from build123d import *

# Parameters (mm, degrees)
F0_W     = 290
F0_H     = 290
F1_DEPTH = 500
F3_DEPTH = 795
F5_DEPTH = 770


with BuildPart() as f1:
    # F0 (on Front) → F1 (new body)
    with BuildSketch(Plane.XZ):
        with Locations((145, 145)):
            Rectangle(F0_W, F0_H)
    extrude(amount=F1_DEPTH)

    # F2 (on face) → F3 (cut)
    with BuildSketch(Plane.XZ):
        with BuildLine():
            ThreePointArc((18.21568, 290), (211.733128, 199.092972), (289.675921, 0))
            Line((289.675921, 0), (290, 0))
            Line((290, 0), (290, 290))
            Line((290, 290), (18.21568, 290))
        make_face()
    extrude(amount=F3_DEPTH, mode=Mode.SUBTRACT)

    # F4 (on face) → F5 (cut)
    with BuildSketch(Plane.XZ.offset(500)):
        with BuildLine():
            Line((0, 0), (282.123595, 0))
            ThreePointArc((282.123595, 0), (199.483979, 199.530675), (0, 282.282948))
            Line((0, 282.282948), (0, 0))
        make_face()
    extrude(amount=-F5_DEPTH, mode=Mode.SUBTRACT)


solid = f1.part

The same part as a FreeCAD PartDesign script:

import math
import FreeCAD as App
import Part
import Sketcher
Q = App.Units.Quantity


def add_polygon(sketch, points):
    """Adds a closed chain of lines whose ends are joined by coincident constraints."""
    first, n = sketch.GeometryCount, len(points)
    for a, b in zip(points, points[1:] + points[:1]):
        sketch.addGeometry(Part.LineSegment(App.Vector(*a, 0), App.Vector(*b, 0)), False)
    for i in range(n):
        sketch.addConstraint(Sketcher.Constraint("Coincident", first + i, 2, first + (i + 1) % n, 1))

doc = App.newDocument("Part")
params = doc.addObject("Spreadsheet::Sheet", "Params")
for row, (alias, value) in enumerate([
    ("sketch1_width", "290 mm"),
    ("pad1_length", "500 mm"),
    ("sketch2_height", "290 mm"),
    ("pocket1_length", "795 mm"),
    ("pocket2_length", "770 mm"),
], start=1):
    params.set(f"A{row}", alias)
    params.set(f"B{row}", "=" + value)
    params.setAlias(f"B{row}", alias)

body = doc.addObject("PartDesign::Body", "Body")

# Sketch on XZ plane
sketch1 = doc.addObject("Sketcher::SketchObject", "Sketch")
body.addObject(sketch1)
sketch1.AttachmentSupport = (doc.XZ_Plane, [""])
sketch1.MapMode = "FlatFace"
add_polygon(sketch1, [(0, 290), (0, 0), (290, 0), (290, 290)])  # lines 0-3
sketch1.addConstraint(Sketcher.Constraint("Vertical", 0))
sketch1.addConstraint(Sketcher.Constraint("Horizontal", 1))
sketch1.addConstraint(Sketcher.Constraint("Vertical", 2))
sketch1.addConstraint(Sketcher.Constraint("Horizontal", 3))
sketch1.addConstraint(Sketcher.Constraint("Coincident", 0, 2, -1, 1))
sketch1.addConstraint(Sketcher.Constraint("Equal", 3, 0))
sketch1.addConstraint(Sketcher.Constraint("DistanceX", 1, 1, 1, 2, Q("290 mm")))
sketch1.setExpression("Constraints[10]", "Params.sketch1_width")
pad1 = doc.addObject("PartDesign::Pad", "Pad")
body.addObject(pad1)
pad1.Profile = sketch1
pad1.setExpression("Length", "Params.pad1_length")

# Sketch on XZ plane
sketch2 = doc.addObject("Sketcher::SketchObject", "Sketch001")
body.addObject(sketch2)
sketch2.AttachmentSupport = (doc.XZ_Plane, [""])
sketch2.MapMode = "FlatFace"
sketch2.addGeometry(Part.ArcOfCircle(Part.Circle(App.Vector(0.92, 1.76, 0), App.Vector(0, 0, 1), 288.76), math.radians(0), math.radians(87)), False)
sketch2.addGeometry(Part.LineSegment(App.Vector(289.68, 0, 0), App.Vector(290, 0, 0)), False)
sketch2.addGeometry(Part.LineSegment(App.Vector(290, 0, 0), App.Vector(290, 290, 0)), False)
sketch2.addGeometry(Part.LineSegment(App.Vector(290, 290, 0), App.Vector(18.22, 290, 0)), False)
sketch2.addConstraint(Sketcher.Constraint("Coincident", 0, 1, 1, 1))
sketch2.addConstraint(Sketcher.Constraint("Coincident", 1, 2, 2, 1))
sketch2.addConstraint(Sketcher.Constraint("Coincident", 2, 2, 3, 1))
sketch2.addConstraint(Sketcher.Constraint("Coincident", 3, 2, 0, 2))
sketch2.addConstraint(Sketcher.Constraint("Horizontal", 1))
sketch2.addConstraint(Sketcher.Constraint("Vertical", 2))
sketch2.addConstraint(Sketcher.Constraint("Horizontal", 3))
sketch2.addConstraint(Sketcher.Constraint("PointOnObject", 1, 2, -1))
sketch2.addConstraint(Sketcher.Constraint("DistanceY", 2, 1, 2, 2, Q("290 mm")))
sketch2.addConstraint(Sketcher.Constraint("DistanceX", -1, 1, 1, 2, Q("290 mm")))
sketch2.addConstraint(Sketcher.Constraint("Radius", 0, Q("288.758864 mm")))
sketch2.addConstraint(Sketcher.Constraint("DistanceX", 1, 1, 1, 2, Q("0.324079 mm")))
sketch2.addConstraint(Sketcher.Constraint("DistanceX", 3, 2, 3, 1, Q("271.78432 mm")))
sketch2.setExpression("Constraints[8]", "Params.sketch2_height")
pocket1 = doc.addObject("PartDesign::Pocket", "Pocket")
body.addObject(pocket1)
pocket1.Profile = sketch2
pocket1.setExpression("Length", "Params.pocket1_length")
pocket1.Reversed = True

# Sketch on XZ plane
sketch3 = doc.addObject("Sketcher::SketchObject", "Sketch002")
body.addObject(sketch3)
sketch3.AttachmentSupport = (doc.XZ_Plane, [""])
sketch3.MapMode = "FlatFace"
sketch3.AttachmentOffset = App.Placement(App.Vector(0, 0, 500), App.Rotation())
sketch3.addGeometry(Part.LineSegment(App.Vector(0, 0, 0), App.Vector(282, 0, 0)), False)
sketch3.addGeometry(Part.ArcOfCircle(Part.Circle(App.Vector(0, 0, 0), App.Vector(0, 0, 1), 282), math.radians(0), math.radians(90)), False)
sketch3.addGeometry(Part.LineSegment(App.Vector(0, 282, 0), App.Vector(0, 0, 0)), False)
sketch3.addConstraint(Sketcher.Constraint("Coincident", 0, 2, 1, 1))
sketch3.addConstraint(Sketcher.Constraint("Coincident", 1, 2, 2, 1))
sketch3.addConstraint(Sketcher.Constraint("Coincident", 2, 2, 0, 1))
sketch3.addConstraint(Sketcher.Constraint("Horizontal", 0))
sketch3.addConstraint(Sketcher.Constraint("Vertical", 2))
sketch3.addConstraint(Sketcher.Constraint("Coincident", 2, 2, -1, 1))
sketch3.addConstraint(Sketcher.Constraint("Radius", 1, Q("282.341742 mm")))
sketch3.addConstraint(Sketcher.Constraint("DistanceX", 0, 1, 0, 2, Q("282.123595 mm")))
sketch3.addConstraint(Sketcher.Constraint("DistanceY", 2, 2, 2, 1, Q("282.282948 mm")))
pocket2 = doc.addObject("PartDesign::Pocket", "Pocket001")
body.addObject(pocket2)
pocket2.Profile = sketch3
pocket2.setExpression("Length", "Params.pocket2_length")

doc.recompute()
